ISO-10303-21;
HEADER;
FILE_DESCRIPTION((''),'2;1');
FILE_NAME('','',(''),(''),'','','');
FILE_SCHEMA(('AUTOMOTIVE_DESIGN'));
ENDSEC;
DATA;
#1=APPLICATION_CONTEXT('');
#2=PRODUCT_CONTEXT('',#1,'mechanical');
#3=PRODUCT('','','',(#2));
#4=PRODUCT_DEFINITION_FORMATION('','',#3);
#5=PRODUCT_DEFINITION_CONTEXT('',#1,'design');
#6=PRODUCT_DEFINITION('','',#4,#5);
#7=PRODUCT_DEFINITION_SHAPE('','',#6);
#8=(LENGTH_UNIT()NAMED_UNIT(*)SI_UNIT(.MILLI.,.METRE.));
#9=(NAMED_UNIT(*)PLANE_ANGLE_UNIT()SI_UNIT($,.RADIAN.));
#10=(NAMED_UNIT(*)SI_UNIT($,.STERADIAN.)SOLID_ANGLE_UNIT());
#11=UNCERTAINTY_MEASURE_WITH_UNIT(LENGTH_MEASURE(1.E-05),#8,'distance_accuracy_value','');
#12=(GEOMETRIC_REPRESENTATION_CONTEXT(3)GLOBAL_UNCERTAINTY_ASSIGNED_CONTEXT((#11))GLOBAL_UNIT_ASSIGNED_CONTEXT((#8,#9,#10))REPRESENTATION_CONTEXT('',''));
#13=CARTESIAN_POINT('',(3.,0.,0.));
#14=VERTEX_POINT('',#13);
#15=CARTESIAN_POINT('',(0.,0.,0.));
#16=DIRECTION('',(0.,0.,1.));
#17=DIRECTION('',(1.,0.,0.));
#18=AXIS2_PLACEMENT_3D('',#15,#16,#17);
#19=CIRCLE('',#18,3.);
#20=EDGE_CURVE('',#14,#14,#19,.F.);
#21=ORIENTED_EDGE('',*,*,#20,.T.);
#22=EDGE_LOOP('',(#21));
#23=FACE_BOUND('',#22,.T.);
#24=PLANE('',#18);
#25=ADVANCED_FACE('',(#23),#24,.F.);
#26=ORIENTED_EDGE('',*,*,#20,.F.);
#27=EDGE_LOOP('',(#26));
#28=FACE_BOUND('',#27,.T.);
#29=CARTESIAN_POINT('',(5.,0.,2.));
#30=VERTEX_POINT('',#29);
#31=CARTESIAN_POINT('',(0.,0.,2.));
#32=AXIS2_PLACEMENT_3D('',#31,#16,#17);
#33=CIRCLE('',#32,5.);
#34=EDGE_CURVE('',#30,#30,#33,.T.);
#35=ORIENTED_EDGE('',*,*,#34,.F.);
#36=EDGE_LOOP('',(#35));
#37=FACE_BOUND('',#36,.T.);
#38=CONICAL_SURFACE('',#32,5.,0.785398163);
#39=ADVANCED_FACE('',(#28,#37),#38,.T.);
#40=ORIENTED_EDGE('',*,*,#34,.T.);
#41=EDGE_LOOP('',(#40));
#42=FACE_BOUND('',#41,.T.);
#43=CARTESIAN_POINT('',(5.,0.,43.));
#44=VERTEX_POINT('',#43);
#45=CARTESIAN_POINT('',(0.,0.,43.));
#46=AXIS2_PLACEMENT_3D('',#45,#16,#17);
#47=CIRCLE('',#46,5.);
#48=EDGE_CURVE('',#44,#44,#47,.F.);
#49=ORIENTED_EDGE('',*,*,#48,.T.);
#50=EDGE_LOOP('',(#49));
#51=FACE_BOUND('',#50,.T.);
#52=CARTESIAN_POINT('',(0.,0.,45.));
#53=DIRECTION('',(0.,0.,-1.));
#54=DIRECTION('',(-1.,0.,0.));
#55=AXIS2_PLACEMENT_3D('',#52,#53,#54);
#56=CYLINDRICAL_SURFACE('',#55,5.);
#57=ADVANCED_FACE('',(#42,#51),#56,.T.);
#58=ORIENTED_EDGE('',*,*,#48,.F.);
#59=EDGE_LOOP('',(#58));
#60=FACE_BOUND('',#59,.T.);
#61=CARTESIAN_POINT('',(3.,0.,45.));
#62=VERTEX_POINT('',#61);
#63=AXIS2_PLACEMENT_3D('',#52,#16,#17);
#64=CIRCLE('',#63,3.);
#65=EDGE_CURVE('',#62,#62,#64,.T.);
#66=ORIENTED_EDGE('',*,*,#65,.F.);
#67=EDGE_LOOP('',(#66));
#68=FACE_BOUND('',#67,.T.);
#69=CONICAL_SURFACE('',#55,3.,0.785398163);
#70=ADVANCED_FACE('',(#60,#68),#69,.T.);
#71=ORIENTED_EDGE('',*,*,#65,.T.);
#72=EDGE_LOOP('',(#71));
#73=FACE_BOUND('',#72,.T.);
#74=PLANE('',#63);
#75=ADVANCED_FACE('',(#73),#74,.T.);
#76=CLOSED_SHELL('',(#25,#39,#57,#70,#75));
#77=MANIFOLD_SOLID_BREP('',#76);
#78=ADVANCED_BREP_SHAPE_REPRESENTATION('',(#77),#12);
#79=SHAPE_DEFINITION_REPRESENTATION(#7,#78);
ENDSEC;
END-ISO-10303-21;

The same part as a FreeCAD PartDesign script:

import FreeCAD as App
import Part
import Sketcher

V = App.Vector
Q = App.Units.Quantity


def edges_at(feature, points):
    """Names of the edges that pass closest to the given points."""
    edges = feature.Shape.Edges
    near = lambda p: min(range(len(edges)), key=lambda i: edges[i].distToShape(Part.Vertex(*p))[0])
    return sorted({f"Edge{near(p) + 1}" for p in points})

doc = App.newDocument("Part")
body = doc.addObject("PartDesign::Body", "Body")

# Sketch on XY plane
sketch1 = body.newObject("Sketcher::SketchObject", "Sketch")
sketch1.AttachmentSupport = (doc.getObject("XY_Plane"), [""])
sketch1.MapMode = "FlatFace"
sketch1.addGeometry(Part.Circle(V(0, 0, 0), V(0, 0, 1), 5), False)
sketch1.addConstraint([
    Sketcher.Constraint("Coincident", 0, 3, -1, 1),
    Sketcher.Constraint("Diameter", 0, Q("10 mm")),
])
pad1 = body.newObject("PartDesign::Pad", "Pad")
pad1.Profile = sketch1
pad1.Length = 45
doc.recompute()

chamfer = body.newObject("PartDesign::Chamfer", "Chamfer")
chamfer.Base = (pad1, edges_at(pad1, [(-5, 0, 0), (-5, 0, 45)]))
chamfer.Size = 2

doc.recompute()
